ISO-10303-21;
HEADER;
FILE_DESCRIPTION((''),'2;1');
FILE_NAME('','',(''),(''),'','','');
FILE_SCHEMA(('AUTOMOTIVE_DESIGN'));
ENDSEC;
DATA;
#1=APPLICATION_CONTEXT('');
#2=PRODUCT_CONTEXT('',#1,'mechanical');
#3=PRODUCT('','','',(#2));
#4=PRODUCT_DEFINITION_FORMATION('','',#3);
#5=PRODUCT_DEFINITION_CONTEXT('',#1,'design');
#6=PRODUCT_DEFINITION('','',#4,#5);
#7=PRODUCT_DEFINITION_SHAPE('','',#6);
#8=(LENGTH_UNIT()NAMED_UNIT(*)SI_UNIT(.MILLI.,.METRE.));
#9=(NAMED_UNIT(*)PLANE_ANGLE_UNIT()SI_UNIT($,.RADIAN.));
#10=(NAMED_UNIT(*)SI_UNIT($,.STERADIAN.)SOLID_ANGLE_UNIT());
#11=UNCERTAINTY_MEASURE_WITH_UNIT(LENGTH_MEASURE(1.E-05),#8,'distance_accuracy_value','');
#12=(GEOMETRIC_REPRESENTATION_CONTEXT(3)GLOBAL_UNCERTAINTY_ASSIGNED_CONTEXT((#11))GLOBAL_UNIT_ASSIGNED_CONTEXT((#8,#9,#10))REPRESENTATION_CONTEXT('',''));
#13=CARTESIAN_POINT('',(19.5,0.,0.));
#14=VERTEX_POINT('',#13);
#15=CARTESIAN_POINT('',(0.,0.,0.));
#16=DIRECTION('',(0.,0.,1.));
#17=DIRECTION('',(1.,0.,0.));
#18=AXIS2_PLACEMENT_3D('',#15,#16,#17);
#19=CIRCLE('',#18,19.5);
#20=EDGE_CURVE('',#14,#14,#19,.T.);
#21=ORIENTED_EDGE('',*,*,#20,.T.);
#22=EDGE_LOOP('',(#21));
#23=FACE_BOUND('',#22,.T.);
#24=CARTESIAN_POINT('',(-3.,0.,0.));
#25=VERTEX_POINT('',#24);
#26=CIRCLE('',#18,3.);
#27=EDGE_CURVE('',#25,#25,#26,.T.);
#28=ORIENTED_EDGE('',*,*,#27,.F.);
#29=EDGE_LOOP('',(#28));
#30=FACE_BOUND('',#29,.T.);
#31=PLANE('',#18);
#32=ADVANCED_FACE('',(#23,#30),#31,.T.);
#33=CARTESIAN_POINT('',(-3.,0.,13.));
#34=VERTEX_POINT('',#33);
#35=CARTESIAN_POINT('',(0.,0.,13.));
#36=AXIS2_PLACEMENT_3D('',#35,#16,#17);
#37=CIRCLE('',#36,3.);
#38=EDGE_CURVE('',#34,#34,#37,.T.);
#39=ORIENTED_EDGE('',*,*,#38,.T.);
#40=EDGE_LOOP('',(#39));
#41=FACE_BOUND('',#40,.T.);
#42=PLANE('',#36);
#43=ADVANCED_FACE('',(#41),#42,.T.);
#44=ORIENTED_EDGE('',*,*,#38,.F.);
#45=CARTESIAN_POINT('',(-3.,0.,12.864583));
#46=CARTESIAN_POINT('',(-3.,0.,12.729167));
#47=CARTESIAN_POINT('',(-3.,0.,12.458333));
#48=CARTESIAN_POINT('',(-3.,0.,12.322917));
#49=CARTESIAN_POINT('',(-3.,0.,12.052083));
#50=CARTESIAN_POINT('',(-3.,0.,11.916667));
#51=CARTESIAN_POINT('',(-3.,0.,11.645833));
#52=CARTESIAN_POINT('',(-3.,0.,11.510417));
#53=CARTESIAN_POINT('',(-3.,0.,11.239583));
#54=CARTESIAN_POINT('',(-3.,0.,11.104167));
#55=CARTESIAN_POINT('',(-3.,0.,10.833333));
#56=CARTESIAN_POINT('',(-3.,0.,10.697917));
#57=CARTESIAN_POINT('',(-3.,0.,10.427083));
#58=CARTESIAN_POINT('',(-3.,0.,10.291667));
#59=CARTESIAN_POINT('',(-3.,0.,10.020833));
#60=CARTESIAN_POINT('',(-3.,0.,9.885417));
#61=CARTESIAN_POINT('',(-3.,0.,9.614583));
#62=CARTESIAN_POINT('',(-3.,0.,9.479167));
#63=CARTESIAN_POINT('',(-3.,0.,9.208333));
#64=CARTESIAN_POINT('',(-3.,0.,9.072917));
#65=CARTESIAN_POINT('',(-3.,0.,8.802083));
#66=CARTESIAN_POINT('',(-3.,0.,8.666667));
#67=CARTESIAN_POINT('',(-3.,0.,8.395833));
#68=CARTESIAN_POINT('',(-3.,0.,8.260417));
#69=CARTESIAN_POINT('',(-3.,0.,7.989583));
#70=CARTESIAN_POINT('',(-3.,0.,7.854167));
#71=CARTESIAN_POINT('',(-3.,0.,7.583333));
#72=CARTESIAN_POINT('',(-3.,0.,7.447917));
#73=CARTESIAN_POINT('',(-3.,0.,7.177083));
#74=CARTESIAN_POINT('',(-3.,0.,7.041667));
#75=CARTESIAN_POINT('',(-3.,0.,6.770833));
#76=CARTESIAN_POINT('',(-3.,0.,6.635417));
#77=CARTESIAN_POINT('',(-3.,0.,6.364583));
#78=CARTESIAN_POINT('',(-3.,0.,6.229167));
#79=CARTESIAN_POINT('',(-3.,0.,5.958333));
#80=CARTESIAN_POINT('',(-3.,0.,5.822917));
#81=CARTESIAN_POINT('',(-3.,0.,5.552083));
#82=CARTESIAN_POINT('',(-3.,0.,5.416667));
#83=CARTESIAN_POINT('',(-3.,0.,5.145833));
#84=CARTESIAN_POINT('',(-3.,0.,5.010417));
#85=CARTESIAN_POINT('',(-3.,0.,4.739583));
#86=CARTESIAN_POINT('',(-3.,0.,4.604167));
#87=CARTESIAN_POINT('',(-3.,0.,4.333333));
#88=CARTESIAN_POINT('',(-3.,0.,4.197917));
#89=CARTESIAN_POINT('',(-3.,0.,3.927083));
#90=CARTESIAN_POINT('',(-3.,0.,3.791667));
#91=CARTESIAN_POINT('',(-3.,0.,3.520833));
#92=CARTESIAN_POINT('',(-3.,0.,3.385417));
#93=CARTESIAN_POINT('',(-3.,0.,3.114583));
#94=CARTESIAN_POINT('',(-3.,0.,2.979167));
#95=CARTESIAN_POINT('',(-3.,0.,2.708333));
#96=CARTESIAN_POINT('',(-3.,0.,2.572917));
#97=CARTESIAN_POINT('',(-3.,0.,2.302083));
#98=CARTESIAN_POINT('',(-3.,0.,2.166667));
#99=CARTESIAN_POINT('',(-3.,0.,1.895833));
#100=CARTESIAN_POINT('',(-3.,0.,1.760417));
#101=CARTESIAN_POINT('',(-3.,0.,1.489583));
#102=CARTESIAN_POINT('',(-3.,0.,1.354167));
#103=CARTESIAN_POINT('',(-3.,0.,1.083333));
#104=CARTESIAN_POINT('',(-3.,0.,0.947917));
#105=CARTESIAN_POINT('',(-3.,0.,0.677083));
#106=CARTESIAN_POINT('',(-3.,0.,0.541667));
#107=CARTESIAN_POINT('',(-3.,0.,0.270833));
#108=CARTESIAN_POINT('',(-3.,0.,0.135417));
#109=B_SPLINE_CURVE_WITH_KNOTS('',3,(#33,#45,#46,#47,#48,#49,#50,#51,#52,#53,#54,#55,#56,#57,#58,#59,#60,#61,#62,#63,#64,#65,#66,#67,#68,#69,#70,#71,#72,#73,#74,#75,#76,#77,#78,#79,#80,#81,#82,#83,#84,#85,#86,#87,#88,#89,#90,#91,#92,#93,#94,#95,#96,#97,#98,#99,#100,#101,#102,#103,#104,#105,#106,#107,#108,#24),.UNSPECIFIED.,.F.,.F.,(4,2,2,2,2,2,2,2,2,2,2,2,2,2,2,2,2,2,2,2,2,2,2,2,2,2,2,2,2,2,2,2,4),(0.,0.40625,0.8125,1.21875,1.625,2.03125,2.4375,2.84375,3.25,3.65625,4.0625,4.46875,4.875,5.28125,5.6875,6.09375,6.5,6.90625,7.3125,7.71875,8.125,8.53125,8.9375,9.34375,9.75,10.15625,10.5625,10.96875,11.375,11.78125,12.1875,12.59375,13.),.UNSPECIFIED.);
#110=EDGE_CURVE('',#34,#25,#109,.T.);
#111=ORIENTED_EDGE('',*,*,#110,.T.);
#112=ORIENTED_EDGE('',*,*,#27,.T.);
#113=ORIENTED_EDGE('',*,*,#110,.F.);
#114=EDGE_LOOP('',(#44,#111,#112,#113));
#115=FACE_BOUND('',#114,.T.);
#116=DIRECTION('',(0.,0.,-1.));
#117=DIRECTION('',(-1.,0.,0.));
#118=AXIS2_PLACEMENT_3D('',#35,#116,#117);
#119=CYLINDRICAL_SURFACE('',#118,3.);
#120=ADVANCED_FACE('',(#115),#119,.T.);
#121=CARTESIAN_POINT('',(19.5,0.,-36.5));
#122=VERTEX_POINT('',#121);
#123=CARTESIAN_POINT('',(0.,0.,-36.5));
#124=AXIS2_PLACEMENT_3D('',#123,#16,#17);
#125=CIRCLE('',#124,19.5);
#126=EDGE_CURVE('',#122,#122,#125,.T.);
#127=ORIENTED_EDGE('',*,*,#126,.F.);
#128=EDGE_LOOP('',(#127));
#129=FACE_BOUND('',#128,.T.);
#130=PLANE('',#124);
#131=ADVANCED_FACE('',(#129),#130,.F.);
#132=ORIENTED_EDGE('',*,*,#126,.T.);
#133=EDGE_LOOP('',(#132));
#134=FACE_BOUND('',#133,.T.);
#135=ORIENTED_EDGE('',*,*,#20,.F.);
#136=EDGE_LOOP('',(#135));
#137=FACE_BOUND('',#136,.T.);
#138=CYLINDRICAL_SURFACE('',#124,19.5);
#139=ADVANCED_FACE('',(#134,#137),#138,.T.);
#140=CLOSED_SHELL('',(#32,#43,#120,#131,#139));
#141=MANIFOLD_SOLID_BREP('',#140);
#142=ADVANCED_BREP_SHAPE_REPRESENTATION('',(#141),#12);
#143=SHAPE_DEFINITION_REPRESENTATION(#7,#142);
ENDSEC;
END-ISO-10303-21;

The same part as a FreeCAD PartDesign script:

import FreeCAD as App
import Part
import Sketcher
Q = App.Units.Quantity

doc = App.newDocument("Part")
body = doc.addObject("PartDesign::Body", "Body")

# Sketch on XY plane
sketch1 = doc.addObject("Sketcher::SketchObject", "Sketch")
body.addObject(sketch1)
sketch1.AttachmentSupport = (doc.XY_Plane, [""])
sketch1.MapMode = "FlatFace"
sketch1.addGeometry(Part.Circle(App.Vector(0, 0, 0), App.Vector(0, 0, 1), 20), False)
sketch1.addConstraint([
    Sketcher.Constraint("Coincident", 0, 3, -1, 1),
    Sketcher.Constraint("Diameter", 0, Q("39 mm")),
])
pad1 = doc.addObject("PartDesign::Pad", "Pad")
body.addObject(pad1)
pad1.Profile = sketch1
pad1.Length = 36.5
pad1.Reversed = True

# Sketch on XY plane
sketch2 = doc.addObject("Sketcher::SketchObject", "Sketch001")
body.addObject(sketch2)
sketch2.AttachmentSupport = (doc.XY_Plane, [""])
sketch2.MapMode = "FlatFace"
sketch2.addGeometry(Part.Circle(App.Vector(0, 0, 0), App.Vector(0, 0, 1), 3), False)
sketch2.addConstraint([
    Sketcher.Constraint("Coincident", 0, 3, -1, 1),
    Sketcher.Constraint("Diameter", 0, Q("6 mm")),
])
pad2 = doc.addObject("PartDesign::Pad", "Pad001")
body.addObject(pad2)
pad2.Profile = sketch2
pad2.Length = 13

doc.recompute()
